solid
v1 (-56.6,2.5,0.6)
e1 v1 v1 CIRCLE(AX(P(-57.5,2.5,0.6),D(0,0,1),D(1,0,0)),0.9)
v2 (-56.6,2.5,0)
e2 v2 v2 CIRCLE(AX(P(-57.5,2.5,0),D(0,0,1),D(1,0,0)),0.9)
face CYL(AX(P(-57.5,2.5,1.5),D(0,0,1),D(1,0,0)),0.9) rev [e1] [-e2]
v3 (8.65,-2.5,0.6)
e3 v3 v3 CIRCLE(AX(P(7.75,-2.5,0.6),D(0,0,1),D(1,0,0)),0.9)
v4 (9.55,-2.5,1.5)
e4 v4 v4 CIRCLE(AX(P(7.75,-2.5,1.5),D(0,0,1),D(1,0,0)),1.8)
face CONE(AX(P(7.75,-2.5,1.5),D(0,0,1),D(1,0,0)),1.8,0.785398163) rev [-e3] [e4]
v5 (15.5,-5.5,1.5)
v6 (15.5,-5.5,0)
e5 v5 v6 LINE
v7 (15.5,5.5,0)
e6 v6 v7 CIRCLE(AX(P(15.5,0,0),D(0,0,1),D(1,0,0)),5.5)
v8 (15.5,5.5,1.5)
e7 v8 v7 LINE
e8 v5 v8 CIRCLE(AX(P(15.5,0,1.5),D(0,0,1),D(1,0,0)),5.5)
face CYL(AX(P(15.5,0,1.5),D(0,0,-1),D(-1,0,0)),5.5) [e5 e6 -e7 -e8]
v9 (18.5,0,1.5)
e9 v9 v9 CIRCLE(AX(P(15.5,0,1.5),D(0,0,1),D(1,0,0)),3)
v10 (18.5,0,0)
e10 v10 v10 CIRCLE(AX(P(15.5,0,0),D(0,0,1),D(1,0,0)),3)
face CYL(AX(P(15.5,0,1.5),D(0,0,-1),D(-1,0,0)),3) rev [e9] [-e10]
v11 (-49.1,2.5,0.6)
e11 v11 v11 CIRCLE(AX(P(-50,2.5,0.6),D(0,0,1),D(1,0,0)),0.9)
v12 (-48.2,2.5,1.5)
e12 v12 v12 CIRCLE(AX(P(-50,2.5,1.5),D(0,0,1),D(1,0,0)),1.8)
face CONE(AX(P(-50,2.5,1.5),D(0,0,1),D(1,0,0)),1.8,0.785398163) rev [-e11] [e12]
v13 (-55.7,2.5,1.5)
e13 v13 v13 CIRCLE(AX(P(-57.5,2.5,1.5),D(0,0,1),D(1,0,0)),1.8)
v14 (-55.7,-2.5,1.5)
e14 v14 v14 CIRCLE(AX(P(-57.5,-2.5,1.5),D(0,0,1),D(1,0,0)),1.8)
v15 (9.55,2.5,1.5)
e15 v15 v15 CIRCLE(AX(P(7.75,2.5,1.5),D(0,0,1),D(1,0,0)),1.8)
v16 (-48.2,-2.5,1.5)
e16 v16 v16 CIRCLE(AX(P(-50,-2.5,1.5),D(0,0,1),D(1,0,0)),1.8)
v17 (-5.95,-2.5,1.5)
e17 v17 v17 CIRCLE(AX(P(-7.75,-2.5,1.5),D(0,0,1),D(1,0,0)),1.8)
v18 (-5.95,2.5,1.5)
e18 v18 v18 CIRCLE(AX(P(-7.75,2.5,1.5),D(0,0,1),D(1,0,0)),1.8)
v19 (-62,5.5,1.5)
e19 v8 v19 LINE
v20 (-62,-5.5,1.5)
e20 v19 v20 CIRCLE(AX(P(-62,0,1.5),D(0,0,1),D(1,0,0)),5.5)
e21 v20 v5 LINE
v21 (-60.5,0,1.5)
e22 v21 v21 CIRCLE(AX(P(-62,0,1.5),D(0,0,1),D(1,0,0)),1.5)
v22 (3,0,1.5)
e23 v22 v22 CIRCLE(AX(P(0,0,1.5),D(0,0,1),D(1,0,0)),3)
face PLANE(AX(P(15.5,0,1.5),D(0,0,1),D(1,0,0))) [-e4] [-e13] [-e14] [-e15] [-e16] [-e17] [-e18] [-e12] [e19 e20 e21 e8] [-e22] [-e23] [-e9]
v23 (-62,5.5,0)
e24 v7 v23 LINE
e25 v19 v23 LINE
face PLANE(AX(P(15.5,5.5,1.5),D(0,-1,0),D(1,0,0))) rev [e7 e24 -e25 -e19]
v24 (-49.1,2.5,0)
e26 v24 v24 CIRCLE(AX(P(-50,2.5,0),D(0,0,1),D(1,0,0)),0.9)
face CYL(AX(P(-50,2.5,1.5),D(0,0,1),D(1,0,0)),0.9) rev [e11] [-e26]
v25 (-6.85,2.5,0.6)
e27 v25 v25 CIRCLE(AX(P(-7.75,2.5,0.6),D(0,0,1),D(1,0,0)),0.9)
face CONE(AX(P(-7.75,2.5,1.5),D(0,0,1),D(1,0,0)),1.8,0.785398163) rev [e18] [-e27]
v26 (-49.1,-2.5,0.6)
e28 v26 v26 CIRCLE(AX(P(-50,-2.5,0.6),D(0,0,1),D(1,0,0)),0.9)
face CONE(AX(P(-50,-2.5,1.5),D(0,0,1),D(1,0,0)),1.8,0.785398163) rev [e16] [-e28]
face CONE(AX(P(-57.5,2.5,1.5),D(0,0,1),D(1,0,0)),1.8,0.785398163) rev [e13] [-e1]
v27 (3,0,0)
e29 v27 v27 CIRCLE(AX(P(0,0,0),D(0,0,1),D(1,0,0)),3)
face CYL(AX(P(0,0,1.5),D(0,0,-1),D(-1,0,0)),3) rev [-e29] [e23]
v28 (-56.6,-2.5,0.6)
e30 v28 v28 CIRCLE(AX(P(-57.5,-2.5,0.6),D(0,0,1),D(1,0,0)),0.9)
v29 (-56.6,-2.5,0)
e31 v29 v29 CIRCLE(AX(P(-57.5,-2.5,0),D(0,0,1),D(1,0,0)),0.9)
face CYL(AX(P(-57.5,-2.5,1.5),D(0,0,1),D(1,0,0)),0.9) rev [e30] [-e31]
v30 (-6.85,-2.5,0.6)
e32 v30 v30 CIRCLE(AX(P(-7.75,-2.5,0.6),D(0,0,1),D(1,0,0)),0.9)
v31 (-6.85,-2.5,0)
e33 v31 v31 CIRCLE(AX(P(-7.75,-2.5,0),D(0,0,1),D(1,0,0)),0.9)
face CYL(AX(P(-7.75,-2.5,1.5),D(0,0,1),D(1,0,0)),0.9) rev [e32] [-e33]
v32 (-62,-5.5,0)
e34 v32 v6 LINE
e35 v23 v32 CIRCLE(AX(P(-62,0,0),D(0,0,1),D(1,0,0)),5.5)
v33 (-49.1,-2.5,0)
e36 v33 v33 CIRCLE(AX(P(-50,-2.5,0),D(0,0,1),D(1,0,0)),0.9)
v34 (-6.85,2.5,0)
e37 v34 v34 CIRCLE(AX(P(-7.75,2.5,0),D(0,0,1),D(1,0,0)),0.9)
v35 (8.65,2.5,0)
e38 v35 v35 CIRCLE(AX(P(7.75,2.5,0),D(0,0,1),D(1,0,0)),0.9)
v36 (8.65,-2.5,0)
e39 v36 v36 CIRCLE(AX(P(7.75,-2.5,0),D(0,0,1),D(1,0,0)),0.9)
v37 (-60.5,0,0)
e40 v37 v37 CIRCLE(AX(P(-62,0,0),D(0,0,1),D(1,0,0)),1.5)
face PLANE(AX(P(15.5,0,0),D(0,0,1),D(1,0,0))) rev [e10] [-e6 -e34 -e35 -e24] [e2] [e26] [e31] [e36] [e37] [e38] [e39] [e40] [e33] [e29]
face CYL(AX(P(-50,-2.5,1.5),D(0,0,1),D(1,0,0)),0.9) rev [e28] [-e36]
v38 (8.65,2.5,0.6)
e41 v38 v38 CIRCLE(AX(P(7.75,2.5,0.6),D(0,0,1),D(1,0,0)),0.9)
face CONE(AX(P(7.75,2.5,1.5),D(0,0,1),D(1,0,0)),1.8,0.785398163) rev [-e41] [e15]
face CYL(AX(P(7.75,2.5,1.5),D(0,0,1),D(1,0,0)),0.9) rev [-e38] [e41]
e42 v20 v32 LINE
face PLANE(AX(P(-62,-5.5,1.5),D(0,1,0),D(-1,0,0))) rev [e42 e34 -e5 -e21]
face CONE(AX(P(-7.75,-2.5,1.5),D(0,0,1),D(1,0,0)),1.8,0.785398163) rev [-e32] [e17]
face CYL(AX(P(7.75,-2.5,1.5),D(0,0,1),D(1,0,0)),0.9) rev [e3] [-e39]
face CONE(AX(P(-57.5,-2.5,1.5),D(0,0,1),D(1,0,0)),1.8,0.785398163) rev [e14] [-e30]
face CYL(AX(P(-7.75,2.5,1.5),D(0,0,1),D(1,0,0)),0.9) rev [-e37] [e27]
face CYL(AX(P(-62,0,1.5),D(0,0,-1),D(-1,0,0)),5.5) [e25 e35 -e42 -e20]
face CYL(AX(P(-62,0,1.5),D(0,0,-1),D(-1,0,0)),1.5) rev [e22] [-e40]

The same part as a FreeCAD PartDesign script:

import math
import FreeCAD as App
import Part
import Sketcher
Q = App.Units.Quantity


def add_polygon(sketch, points):
    """Adds a closed chain of lines whose ends are joined by coincident constraints."""
    first, n = sketch.GeometryCount, len(points)
    for a, b in zip(points, points[1:] + points[:1]):
        sketch.addGeometry(Part.LineSegment(App.Vector(*a, 0), App.Vector(*b, 0)), False)
    for i in range(n):
        sketch.addConstraint(Sketcher.Constraint("Coincident", first + i, 2, first + (i + 1) % n, 1))

doc = App.newDocument("Part")
params = doc.addObject("Spreadsheet::Sheet", "Params")
for row, (alias, value) in enumerate([
    ("sketch1_diameter", "3 mm"),
    ("sketch1_diameter2", "6 mm"),
    ("sketch1_radius", "5.5 mm"),
    ("sketch1_width", "77.5 mm"),
    ("pad1_length", "1.5 mm"),
    ("sketch2_width", "1.8 mm"),
    ("sketch2_width2", "0.9 mm"),
    ("sketch2_height", "1.5 mm"),
    ("groove_angle", "360 deg"),
    ("linearpattern_pitch", "15.5 mm"),
    ("linearpattern2_pitch", "65.25 mm"),
    ("linearpattern3_pitch", "57.75 mm"),
    ("sketch3_width", "0.9 mm"),
    ("sketch3_width2", "1.8 mm"),
    ("sketch3_height", "1.5 mm"),
    ("groove2_angle", "360 deg"),
    ("sketch4_width", "0.9 mm"),
    ("sketch4_width2", "1.8 mm"),
    ("sketch4_height", "1.5 mm"),
    ("groove3_angle", "360 deg"),
    ("sketch5_width", "0.9 mm"),
    ("sketch5_width2", "1.8 mm"),
    ("sketch5_height", "1.5 mm"),
    ("groove4_angle", "360 deg"),
], start=1):
    params.set(f"A{row}", alias)
    params.set(f"B{row}", "=" + value)
    params.setAlias(f"B{row}", alias)

body = doc.addObject("PartDesign::Body", "Body")

# Sketch on XY plane
sketch1 = body.newObject("Sketcher::SketchObject", "Sketch")
sketch1.AttachmentSupport = (doc.getObject("XY_Plane"), [""])
sketch1.MapMode = "FlatFace"
sketch1.addGeometry([
    Part.LineSegment(App.Vector(15.5, 5.5, 0), App.Vector(-62, 5.5, 0)),  # 0
    Part.ArcOfCircle(Part.Circle(App.Vector(-62, 0, 0), App.Vector(0, 0, 1), 5.5), math.radians(90), math.radians(270)),  # 1
    Part.LineSegment(App.Vector(-62, -5.5, 0), App.Vector(15.5, -5.5, 0)),  # 2
    Part.ArcOfCircle(Part.Circle(App.Vector(15.5, 0, 0), App.Vector(0, 0, 1), 5.5), math.radians(-90), math.radians(90)),  # 3
    Part.Circle(App.Vector(-62, 0, 0), App.Vector(0, 0, 1), 1.5),  # 4
    Part.Circle(App.Vector(0, 0, 0), App.Vector(0, 0, 1), 3),  # 5
    Part.Circle(App.Vector(15.5, 0, 0), App.Vector(0, 0, 1), 3),  # 6
], False)
sketch1.addConstraint([
    Sketcher.Constraint("Tangent", 0, 2, 1, 1),
    Sketcher.Constraint("Tangent", 1, 2, 2, 1),
    Sketcher.Constraint("Tangent", 2, 2, 3, 1),
    Sketcher.Constraint("Tangent", 3, 2, 0, 1),
    Sketcher.Constraint("Horizontal", 0),
    Sketcher.Constraint("Horizontal", 2),
    Sketcher.Constraint("Coincident", 5, 3, -1, 1),
    Sketcher.Constraint("Coincident", 4, 3, 1, 3),
    Sketcher.Constraint("Coincident", 6, 3, 3, 3),
    Sketcher.Constraint("Equal", 5, 6),
    Sketcher.Constraint("PointOnObject", 1, 3, -1),
    Sketcher.Constraint("Diameter", 4, 3.0),
    Sketcher.Constraint("Diameter", 5, 6.0),
    Sketcher.Constraint("Radius", 1, 5.5),
    Sketcher.Constraint("DistanceX", 0, 2, 0, 1, 77.5),
    Sketcher.Constraint("DistanceX", 1, 3, -1, 1, 62.0),
])
sketch1.setExpression("Constraints[11]", "Params.sketch1_diameter")
sketch1.setExpression("Constraints[12]", "Params.sketch1_diameter2")
sketch1.setExpression("Constraints[13]", "Params.sketch1_radius")
sketch1.setExpression("Constraints[14]", "Params.sketch1_width")
pad1 = body.newObject("PartDesign::Pad", "Pad")
pad1.Profile = sketch1
pad1.setExpression("Length", "Params.pad1_length")

# Sketch on YZ plane
sketch2 = body.newObject("Sketcher::SketchObject", "Sketch001")
sketch2.AttachmentSupport = (doc.getObject("YZ_Plane"), [""])
sketch2.MapMode = "FlatFace"
sketch2.AttachmentOffset = App.Placement(App.Vector(0, 0, 7.75), App.Rotation())
add_polygon(sketch2, [(2.5, 0), (2.5, 1.5), (0.7, 1.5), (1.6, 0.6), (1.6, 0)])  # lines 0-4
sketch2.addGeometry(Part.LineSegment(App.Vector(2.5, 1.5, 0), App.Vector(2.5, 0, 0)), True)  # axis
sketch2.addConstraint([
    Sketcher.Constraint("Vertical", 0),
    Sketcher.Constraint("Horizontal", 1),
    Sketcher.Constraint("Vertical", 3),
    Sketcher.Constraint("Horizontal", 4),
    Sketcher.Constraint("Vertical", 5),
    Sketcher.Constraint("Coincident", 5, 1, 0, 2),
    Sketcher.Constraint("PointOnObject", 3, 2, -1),
    Sketcher.Constraint("PointOnObject", 5, 2, -1),
    Sketcher.Constraint("Angle", 2, Q("-45 deg")),
    Sketcher.Constraint("DistanceX", 1, 2, 1, 1, 1.8),
    Sketcher.Constraint("DistanceX", 4, 1, 4, 2, 0.9),
    Sketcher.Constraint("DistanceY", 0, 1, 0, 2, 1.5),
    Sketcher.Constraint("DistanceX", -1, 1, 0, 2, 2.5),
])
sketch2.setExpression("Constraints[14]", "Params.sketch2_width")
sketch2.setExpression("Constraints[15]", "Params.sketch2_width2")
sketch2.setExpression("Constraints[16]", "Params.sketch2_height")
groove = body.newObject("PartDesign::Groove", "Groove")
groove.Profile = sketch2
groove.ReferenceAxis = (sketch2, ["Axis0"])
groove.setExpression("Angle", "Params.groove_angle")
doc.recompute()

linearpattern = body.newObject("PartDesign::LinearPattern", "LinearPattern")
linearpattern.Originals = [groove]
linearpattern.Direction = (doc.getObject("X_Axis"), [""])
linearpattern.Mode = "offset"
linearpattern.setExpression("Offset", "Params.linearpattern_pitch")
linearpattern.Occurrences = 2
linearpattern.Reversed = True
body.Tip = linearpattern
doc.recompute()

linearpattern2 = body.newObject("PartDesign::LinearPattern", "LinearPattern001")
linearpattern2.Originals = [groove]
linearpattern2.Direction = (doc.getObject("X_Axis"), [""])
linearpattern2.Mode = "offset"
linearpattern2.setExpression("Offset", "Params.linearpattern2_pitch")
linearpattern2.Occurrences = 2
linearpattern2.Reversed = True
body.Tip = linearpattern2
doc.recompute()

linearpattern3 = body.newObject("PartDesign::LinearPattern", "LinearPattern002")
linearpattern3.Originals = [groove]
linearpattern3.Direction = (doc.getObject("X_Axis"), [""])
linearpattern3.Mode = "offset"
linearpattern3.setExpression("Offset", "Params.linearpattern3_pitch")
linearpattern3.Occurrences = 2
linearpattern3.Reversed = True
body.Tip = linearpattern3
doc.recompute()

mirrored = body.newObject("PartDesign::Mirrored", "Mirrored")
mirrored.Originals = [groove]
mirrored.MirrorPlane = (doc.getObject("XZ_Plane"), [""])
body.Tip = mirrored

# Sketch on YZ plane
sketch3 = body.newObject("Sketcher::SketchObject", "Sketch002")
sketch3.AttachmentSupport = (doc.getObject("YZ_Plane"), [""])
sketch3.MapMode = "FlatFace"
sketch3.AttachmentOffset = App.Placement(App.Vector(0, 0, -7.75), App.Rotation())
add_polygon(sketch3, [(-2.5, 1.5), (-2.5, 0), (-1.6, 0), (-1.6, 0.6), (-0.7, 1.5)])  # lines 0-4
sketch3.addGeometry(Part.LineSegment(App.Vector(-2.5, 0, 0), App.Vector(-2.5, 1.5, 0)), True)  # axis
sketch3.addConstraint([
    Sketcher.Constraint("Vertical", 0),
    Sketcher.Constraint("Horizontal", 1),
    Sketcher.Constraint("Vertical", 2),
    Sketcher.Constraint("Horizontal", 4),
    Sketcher.Constraint("Vertical", 5),
    Sketcher.Constraint("Coincident", 5, 1, 0, 2),
    Sketcher.Constraint("PointOnObject", 0, 2, -1),
    Sketcher.Constraint("Horizontal", 3, 2, 5, 2),
    Sketcher.Constraint("Angle", 3, Q("45 deg")),
    Sketcher.Constraint("DistanceX", 1, 1, 1, 2, 0.9),
    Sketcher.Constraint("DistanceX", 4, 2, 4, 1, 1.8),
    Sketcher.Constraint("DistanceY", 0, 2, 0, 1, 1.5),
    Sketcher.Constraint("DistanceX", 0, 2, -1, 1, 2.5),
])
sketch3.setExpression("Constraints[14]", "Params.sketch3_width")
sketch3.setExpression("Constraints[15]", "Params.sketch3_width2")
sketch3.setExpression("Constraints[16]", "Params.sketch3_height")
groove2 = body.newObject("PartDesign::Groove", "Groove001")
groove2.Profile = sketch3
groove2.ReferenceAxis = (sketch3, ["Axis0"])
groove2.setExpression("Angle", "Params.groove2_angle")

# Sketch on YZ plane
sketch4 = body.newObject("Sketcher::SketchObject", "Sketch003")
sketch4.AttachmentSupport = (doc.getObject("YZ_Plane"), [""])
sketch4.MapMode = "FlatFace"
sketch4.AttachmentOffset = App.Placement(App.Vector(0, 0, -57.5), App.Rotation())
add_polygon(sketch4, [(-2.5, 1.5), (-2.5, 0), (-1.6, 0), (-1.6, 0.6), (-0.7, 1.5)])  # lines 0-4
sketch4.addGeometry(Part.LineSegment(App.Vector(-2.5, 0, 0), App.Vector(-2.5, 1.5, 0)), True)  # axis
sketch4.addConstraint([
    Sketcher.Constraint("Vertical", 0),
    Sketcher.Constraint("Horizontal", 1),
    Sketcher.Constraint("Vertical", 2),
    Sketcher.Constraint("Horizontal", 4),
    Sketcher.Constraint("Vertical", 5),
    Sketcher.Constraint("Coincident", 5, 1, 0, 2),
    Sketcher.Constraint("PointOnObject", 0, 2, -1),
    Sketcher.Constraint("Horizontal", 3, 2, 5, 2),
    Sketcher.Constraint("Angle", 3, Q("45 deg")),
    Sketcher.Constraint("DistanceX", 1, 1, 1, 2, 0.9),
    Sketcher.Constraint("DistanceX", 4, 2, 4, 1, 1.8),
    Sketcher.Constraint("DistanceY", 0, 2, 0, 1, 1.5),
    Sketcher.Constraint("DistanceX", 0, 2, -1, 1, 2.5),
])
sketch4.setExpression("Constraints[14]", "Params.sketch4_width")
sketch4.setExpression("Constraints[15]", "Params.sketch4_width2")
sketch4.setExpression("Constraints[16]", "Params.sketch4_height")
groove3 = body.newObject("PartDesign::Groove", "Groove002")
groove3.Profile = sketch4
groove3.ReferenceAxis = (sketch4, ["Axis0"])
groove3.setExpression("Angle", "Params.groove3_angle")

# Sketch on YZ plane
sketch5 = body.newObject("Sketcher::SketchObject", "Sketch004")
sketch5.AttachmentSupport = (doc.getObject("YZ_Plane"), [""])
sketch5.MapMode = "FlatFace"
sketch5.AttachmentOffset = App.Placement(App.Vector(0, 0, -50), App.Rotation())
add_polygon(sketch5, [(-2.5, 1.5), (-2.5, 0), (-1.6, 0), (-1.6, 0.6), (-0.7, 1.5)])  # lines 0-4
sketch5.addGeometry(Part.LineSegment(App.Vector(-2.5, 0, 0), App.Vector(-2.5, 1.5, 0)), True)  # axis
sketch5.addConstraint([
    Sketcher.Constraint("Vertical", 0),
    Sketcher.Constraint("Horizontal", 1),
    Sketcher.Constraint("Vertical", 2),
    Sketcher.Constraint("Horizontal", 4),
    Sketcher.Constraint("Vertical", 5),
    Sketcher.Constraint("Coincident", 5, 1, 0, 2),
    Sketcher.Constraint("PointOnObject", 0, 2, -1),
    Sketcher.Constraint("Horizontal", 3, 2, 5, 2),
    Sketcher.Constraint("Angle", 3, Q("45 deg")),
    Sketcher.Constraint("DistanceX", 1, 1, 1, 2, 0.9),
    Sketcher.Constraint("DistanceX", 4, 2, 4, 1, 1.8),
    Sketcher.Constraint("DistanceY", 0, 2, 0, 1, 1.5),
    Sketcher.Constraint("DistanceX", 0, 2, -1, 1, 2.5),
])
sketch5.setExpression("Constraints[14]", "Params.sketch5_width")
sketch5.setExpression("Constraints[15]", "Params.sketch5_width2")
sketch5.setExpression("Constraints[16]", "Params.sketch5_height")
groove4 = body.newObject("PartDesign::Groove", "Groove003")
groove4.Profile = sketch5
groove4.ReferenceAxis = (sketch5, ["Axis0"])
groove4.setExpression("Angle", "Params.groove4_angle")

doc.recompute()
